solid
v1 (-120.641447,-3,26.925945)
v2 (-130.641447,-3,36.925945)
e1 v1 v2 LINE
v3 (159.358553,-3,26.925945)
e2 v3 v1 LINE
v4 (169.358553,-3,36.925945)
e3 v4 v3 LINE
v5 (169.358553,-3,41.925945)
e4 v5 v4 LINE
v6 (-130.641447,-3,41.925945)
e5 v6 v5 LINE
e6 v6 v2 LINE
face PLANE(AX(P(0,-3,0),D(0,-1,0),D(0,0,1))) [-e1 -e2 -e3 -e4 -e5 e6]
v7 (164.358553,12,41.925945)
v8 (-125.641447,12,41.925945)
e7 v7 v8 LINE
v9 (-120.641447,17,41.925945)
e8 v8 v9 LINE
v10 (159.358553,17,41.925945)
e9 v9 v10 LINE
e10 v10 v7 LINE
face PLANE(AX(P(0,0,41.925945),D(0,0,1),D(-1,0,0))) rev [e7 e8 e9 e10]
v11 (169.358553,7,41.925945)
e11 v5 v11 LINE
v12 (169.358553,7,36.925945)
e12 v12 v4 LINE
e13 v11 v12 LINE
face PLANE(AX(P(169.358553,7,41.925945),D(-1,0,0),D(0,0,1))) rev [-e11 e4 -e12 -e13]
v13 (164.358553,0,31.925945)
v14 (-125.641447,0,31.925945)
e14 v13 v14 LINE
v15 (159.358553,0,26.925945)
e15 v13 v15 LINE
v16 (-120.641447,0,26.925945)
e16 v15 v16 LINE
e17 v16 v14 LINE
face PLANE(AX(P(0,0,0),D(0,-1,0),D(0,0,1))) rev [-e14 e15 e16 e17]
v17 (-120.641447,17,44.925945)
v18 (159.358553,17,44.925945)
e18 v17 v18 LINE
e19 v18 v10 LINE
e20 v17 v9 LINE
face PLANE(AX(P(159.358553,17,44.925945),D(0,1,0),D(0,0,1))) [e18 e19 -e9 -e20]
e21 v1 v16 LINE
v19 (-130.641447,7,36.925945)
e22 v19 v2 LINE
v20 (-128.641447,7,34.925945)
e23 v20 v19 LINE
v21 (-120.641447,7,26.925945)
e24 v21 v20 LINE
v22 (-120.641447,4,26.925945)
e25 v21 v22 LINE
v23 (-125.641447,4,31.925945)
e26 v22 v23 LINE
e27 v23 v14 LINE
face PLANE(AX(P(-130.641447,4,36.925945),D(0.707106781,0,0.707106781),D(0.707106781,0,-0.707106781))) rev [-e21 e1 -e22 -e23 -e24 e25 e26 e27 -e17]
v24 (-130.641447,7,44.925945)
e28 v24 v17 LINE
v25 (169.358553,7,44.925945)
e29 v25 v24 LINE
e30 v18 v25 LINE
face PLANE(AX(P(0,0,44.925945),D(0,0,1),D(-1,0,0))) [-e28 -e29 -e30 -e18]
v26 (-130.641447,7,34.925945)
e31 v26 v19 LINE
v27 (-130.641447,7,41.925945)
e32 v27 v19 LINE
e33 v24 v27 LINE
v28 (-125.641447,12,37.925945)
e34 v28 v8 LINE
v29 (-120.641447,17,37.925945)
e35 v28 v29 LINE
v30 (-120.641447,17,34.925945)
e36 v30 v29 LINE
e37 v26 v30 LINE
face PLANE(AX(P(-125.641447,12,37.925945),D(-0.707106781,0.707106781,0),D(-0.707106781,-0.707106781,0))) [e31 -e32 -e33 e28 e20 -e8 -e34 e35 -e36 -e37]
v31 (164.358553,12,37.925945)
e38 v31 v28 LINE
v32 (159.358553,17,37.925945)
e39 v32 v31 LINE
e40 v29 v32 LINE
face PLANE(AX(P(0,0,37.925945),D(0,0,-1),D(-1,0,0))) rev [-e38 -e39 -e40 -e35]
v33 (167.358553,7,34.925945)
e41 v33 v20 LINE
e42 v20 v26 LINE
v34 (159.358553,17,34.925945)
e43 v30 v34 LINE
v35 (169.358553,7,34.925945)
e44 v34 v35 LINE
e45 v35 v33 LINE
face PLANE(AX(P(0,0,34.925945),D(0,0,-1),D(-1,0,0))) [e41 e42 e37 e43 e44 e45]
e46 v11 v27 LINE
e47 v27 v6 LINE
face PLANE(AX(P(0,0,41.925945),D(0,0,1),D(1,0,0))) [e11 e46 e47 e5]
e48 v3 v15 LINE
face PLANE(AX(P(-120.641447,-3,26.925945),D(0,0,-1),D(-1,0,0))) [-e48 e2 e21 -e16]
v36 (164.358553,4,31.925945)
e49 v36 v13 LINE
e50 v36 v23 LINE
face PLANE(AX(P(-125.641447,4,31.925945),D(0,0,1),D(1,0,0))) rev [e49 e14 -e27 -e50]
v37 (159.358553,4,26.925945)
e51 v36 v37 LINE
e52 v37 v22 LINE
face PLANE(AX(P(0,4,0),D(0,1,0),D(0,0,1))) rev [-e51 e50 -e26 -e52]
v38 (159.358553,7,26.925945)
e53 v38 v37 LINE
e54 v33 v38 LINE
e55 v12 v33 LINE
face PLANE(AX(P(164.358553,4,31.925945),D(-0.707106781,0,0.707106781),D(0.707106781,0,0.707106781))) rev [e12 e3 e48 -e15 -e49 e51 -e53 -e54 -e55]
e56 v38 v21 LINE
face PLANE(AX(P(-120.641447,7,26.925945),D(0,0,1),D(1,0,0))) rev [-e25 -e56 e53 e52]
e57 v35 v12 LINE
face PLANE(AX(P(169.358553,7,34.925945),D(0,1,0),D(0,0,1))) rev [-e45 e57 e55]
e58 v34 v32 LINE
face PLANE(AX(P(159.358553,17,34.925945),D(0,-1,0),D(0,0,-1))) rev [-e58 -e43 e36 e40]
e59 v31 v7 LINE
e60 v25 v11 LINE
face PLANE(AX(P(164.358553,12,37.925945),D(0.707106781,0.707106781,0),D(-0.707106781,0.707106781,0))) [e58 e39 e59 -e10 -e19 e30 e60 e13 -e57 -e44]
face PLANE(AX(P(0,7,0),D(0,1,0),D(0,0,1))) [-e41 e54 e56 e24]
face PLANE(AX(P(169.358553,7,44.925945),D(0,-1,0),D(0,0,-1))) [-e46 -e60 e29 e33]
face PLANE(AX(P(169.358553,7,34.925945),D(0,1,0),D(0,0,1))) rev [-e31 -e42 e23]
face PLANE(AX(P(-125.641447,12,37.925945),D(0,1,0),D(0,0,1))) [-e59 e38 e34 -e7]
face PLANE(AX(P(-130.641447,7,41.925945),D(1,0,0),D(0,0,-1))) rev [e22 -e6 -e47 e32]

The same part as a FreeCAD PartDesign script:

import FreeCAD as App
import Part
import Sketcher

V = App.Vector
Q = App.Units.Quantity

doc = App.newDocument("Part")
body = doc.addObject("PartDesign::Body", "Body")

sketch1 = doc.addObject("Sketcher::SketchObject", "Sketch")
body.addObject(sketch1)
sketch1.AttachmentSupport = (doc.XZ_Plane, [""])
sketch1.MapMode = "FlatFace"
sketch1.addGeometry(Part.LineSegment(V(-130.641447, 36.925945, 0), V(169.358553, 36.925945, 0)), False)
sketch1.addGeometry(Part.LineSegment(V(169.358553, 36.925945, 0), V(164.358553, 31.925945, 0)), False)
sketch1.addGeometry(Part.LineSegment(V(164.358553, 31.925945, 0), V(-125.641447, 31.925945, 0)), False)
sketch1.addGeometry(Part.LineSegment(V(-125.641447, 31.925945, 0), V(-130.641447, 36.925945, 0)), False)
sketch1.addConstraint(Sketcher.Constraint("Coincident", 0, 2, 1, 1))
sketch1.addConstraint(Sketcher.Constraint("Coincident", 1, 2, 2, 1))
sketch1.addConstraint(Sketcher.Constraint("Coincident", 2, 2, 3, 1))
sketch1.addConstraint(Sketcher.Constraint("Coincident", 3, 2, 0, 1))
sketch1.addConstraint(Sketcher.Constraint("Horizontal", 0))
sketch1.addConstraint(Sketcher.Constraint("Horizontal", 2))
sketch1.addConstraint(Sketcher.Constraint("Perpendicular", 1, 3))
sketch1.addConstraint(Sketcher.Constraint("Equal", 1, 3))
sketch1.addConstraint(Sketcher.Constraint("DistanceX", 0, 1, 0, 2, Q("300 mm")))
sketch1.addConstraint(Sketcher.Constraint("DistanceX", 2, 2, 2, 1, Q("290 mm")))
sketch1.addConstraint(Sketcher.Constraint("DistanceX", -1, 1, 0, 2, Q("169.358553 mm")))
sketch1.addConstraint(Sketcher.Constraint("DistanceY", -1, 1, 0, 2, Q("36.925945 mm")))
pad1 = doc.addObject("PartDesign::Pad", "Pad")
body.addObject(pad1)
pad1.Profile = sketch1
pad1.Length = 4
pad1.Reversed = True

sketch2 = doc.addObject("Sketcher::SketchObject", "Sketch001")
body.addObject(sketch2)
sketch2.AttachmentSupport = (doc.XZ_Plane, [""])
sketch2.MapMode = "FlatFace"
sketch2.AttachmentOffset = App.Placement(V(0, 0, -4), App.Rotation())
sketch2.addGeometry(Part.LineSegment(V(-120.641447, 26.925945, 0), V(-130.641447, 36.925945, 0)), False)
sketch2.addGeometry(Part.LineSegment(V(-130.641447, 36.925945, 0), V(169.358553, 36.925945, 0)), False)
sketch2.addGeometry(Part.LineSegment(V(169.358553, 36.925945, 0), V(159.358553, 26.925945, 0)), False)
sketch2.addGeometry(Part.LineSegment(V(159.358553, 26.925945, 0), V(-120.641447, 26.925945, 0)), False)
sketch2.addConstraint(Sketcher.Constraint("Coincident", 0, 2, 1, 1))
sketch2.addConstraint(Sketcher.Constraint("Coincident", 1, 2, 2, 1))
sketch2.addConstraint(Sketcher.Constraint("Coincident", 2, 2, 3, 1))
sketch2.addConstraint(Sketcher.Constraint("Coincident", 3, 2, 0, 1))
sketch2.addConstraint(Sketcher.Constraint("Horizontal", 1))
sketch2.addConstraint(Sketcher.Constraint("Horizontal", 3))
sketch2.addConstraint(Sketcher.Constraint("Perpendicular", 0, 2))
sketch2.addConstraint(Sketcher.Constraint("Equal", 0, 2))
sketch2.addConstraint(Sketcher.Constraint("DistanceX", 1, 1, 1, 2, Q("300 mm")))
sketch2.addConstraint(Sketcher.Constraint("DistanceX", 3, 2, 3, 1, Q("280 mm")))
sketch2.addConstraint(Sketcher.Constraint("DistanceX", 0, 2, -1, 1, Q("130.641447 mm")))
sketch2.addConstraint(Sketcher.Constraint("DistanceY", -1, 1, 0, 2, Q("36.925945 mm")))
pad2 = doc.addObject("PartDesign::Pad", "Pad001")
body.addObject(pad2)
pad2.Profile = sketch2
pad2.Length = 3
pad2.Reversed = True
doc.recompute()

datumplane = doc.addObject("PartDesign::Plane", "DatumPlane")
body.addObject(datumplane)
datumplane.AttachmentSupport = (doc.XZ_Plane, [""])
datumplane.MapMode = "FlatFace"
datumplane.AttachmentOffset = App.Placement(V(0, 0, -2), App.Rotation())
mirrored = doc.addObject("PartDesign::Mirrored", "Mirrored")
body.addObject(mirrored)
mirrored.Originals = [pad2]
mirrored.MirrorPlane = (datumplane, [""])
body.Tip = mirrored

sketch3 = doc.addObject("Sketcher::SketchObject", "Sketch002")
body.addObject(sketch3)
sketch3.AttachmentSupport = (doc.XY_Plane, [""])
sketch3.MapMode = "FlatFace"
sketch3.AttachmentOffset = App.Placement(V(0, 0, 36.925945), App.Rotation())
sketch3.addGeometry(Part.LineSegment(V(-130.641447, 7, 0), V(-130.641447, -3, 0)), False)
sketch3.addGeometry(Part.LineSegment(V(-130.641447, -3, 0), V(169.358553, -3, 0)), False)
sketch3.addGeometry(Part.LineSegment(V(169.358553, -3, 0), V(169.358553, 7, 0)), False)
sketch3.addGeometry(Part.LineSegment(V(169.358553, 7, 0), V(-130.641447, 7, 0)), False)
sketch3.addConstraint(Sketcher.Constraint("Coincident", 0, 2, 1, 1))
sketch3.addConstraint(Sketcher.Constraint("Coincident", 1, 2, 2, 1))
sketch3.addConstraint(Sketcher.Constraint("Coincident", 2, 2, 3, 1))
sketch3.addConstraint(Sketcher.Constraint("Coincident", 3, 2, 0, 1))
sketch3.addConstraint(Sketcher.Constraint("Vertical", 0))
sketch3.addConstraint(Sketcher.Constraint("Horizontal", 1))
sketch3.addConstraint(Sketcher.Constraint("Vertical", 2))
sketch3.addConstraint(Sketcher.Constraint("Horizontal", 3))
sketch3.addConstraint(Sketcher.Constraint("DistanceX", 1, 1, 1, 2, Q("300 mm")))
sketch3.addConstraint(Sketcher.Constraint("DistanceY", 0, 2, 0, 1, Q("10 mm")))
sketch3.addConstraint(Sketcher.Constraint("DistanceY", 0, 2, -1, 1, Q("3 mm")))
sketch3.addConstraint(Sketcher.Constraint("DistanceX", 0, 2, -1, 1, Q("130.641447 mm")))
pad3 = doc.addObject("PartDesign::Pad", "Pad002")
body.addObject(pad3)
pad3.Profile = sketch3
pad3.Length = 5

sketch4 = doc.addObject("Sketcher::SketchObject", "Sketch003")
body.addObject(sketch4)
sketch4.AttachmentSupport = (doc.XY_Plane, [""])
sketch4.MapMode = "FlatFace"
sketch4.AttachmentOffset = App.Placement(V(0, 0, 41.925945), App.Rotation())
sketch4.addGeometry(Part.LineSegment(V(-130.641447, 7, 0), V(169.358553, 7, 0)), False)
sketch4.addGeometry(Part.LineSegment(V(169.358553, 7, 0), V(164.358553, 12, 0)), False)
sketch4.addGeometry(Part.LineSegment(V(164.358553, 12, 0), V(-125.641447, 12, 0)), False)
sketch4.addGeometry(Part.LineSegment(V(-125.641447, 12, 0), V(-130.641447, 7, 0)), False)
sketch4.addConstraint(Sketcher.Constraint("Coincident", 0, 2, 1, 1))
sketch4.addConstraint(Sketcher.Constraint("Coincident", 1, 2, 2, 1))
sketch4.addConstraint(Sketcher.Constraint("Coincident", 2, 2, 3, 1))
sketch4.addConstraint(Sketcher.Constraint("Coincident", 3, 2, 0, 1))
sketch4.addConstraint(Sketcher.Constraint("Horizontal", 0))
sketch4.addConstraint(Sketcher.Constraint("Horizontal", 2))
sketch4.addConstraint(Sketcher.Constraint("Perpendicular", 1, 3))
sketch4.addConstraint(Sketcher.Constraint("Equal", 1, 3))
sketch4.addConstraint(Sketcher.Constraint("DistanceX", 0, 1, 0, 2, Q("300 mm")))
sketch4.addConstraint(Sketcher.Constraint("DistanceX", 2, 2, 2, 1, Q("290 mm")))
sketch4.addConstraint(Sketcher.Constraint("DistanceY", -1, 1, 0, 2, Q("7 mm")))
sketch4.addConstraint(Sketcher.Constraint("DistanceX", -1, 1, 0, 2, Q("169.358553 mm")))
pad4 = doc.addObject("PartDesign::Pad", "Pad003")
body.addObject(pad4)
pad4.Profile = sketch4
pad4.Length = 4
pad4.Reversed = True

sketch5 = doc.addObject("Sketcher::SketchObject", "Sketch004")
body.addObject(sketch5)
sketch5.AttachmentSupport = (doc.XY_Plane, [""])
sketch5.MapMode = "FlatFace"
sketch5.AttachmentOffset = App.Placement(V(0, 0, 37.925945), App.Rotation())
sketch5.addGeometry(Part.LineSegment(V(159.358553, 17, 0), V(169.358553, 7, 0)), False)
sketch5.addGeometry(Part.LineSegment(V(169.358553, 7, 0), V(-130.641447, 7, 0)), False)
sketch5.addGeometry(Part.LineSegment(V(-130.641447, 7, 0), V(-120.641447, 17, 0)), False)
sketch5.addGeometry(Part.LineSegment(V(-120.641447, 17, 0), V(159.358553, 17, 0)), False)
sketch5.addConstraint(Sketcher.Constraint("Coincident", 0, 2, 1, 1))
sketch5.addConstraint(Sketcher.Constraint("Coincident", 1, 2, 2, 1))
sketch5.addConstraint(Sketcher.Constraint("Coincident", 2, 2, 3, 1))
sketch5.addConstraint(Sketcher.Constraint("Coincident", 3, 2, 0, 1))
sketch5.addConstraint(Sketcher.Constraint("Horizontal", 1))
sketch5.addConstraint(Sketcher.Constraint("Horizontal", 3))
sketch5.addConstraint(Sketcher.Constraint("Perpendicular", 0, 2))
sketch5.addConstraint(Sketcher.Constraint("Equal", 0, 2))
sketch5.addConstraint(Sketcher.Constraint("DistanceX", 1, 2, 1, 1, Q("300 mm")))
sketch5.addConstraint(Sketcher.Constraint("DistanceX", 3, 1, 3, 2, Q("280 mm")))
sketch5.addConstraint(Sketcher.Constraint("DistanceY", -1, 1, 0, 2, Q("7 mm")))
sketch5.addConstraint(Sketcher.Constraint("DistanceX", -1, 1, 0, 2, Q("169.358553 mm")))
pad5 = doc.addObject("PartDesign::Pad", "Pad004")
body.addObject(pad5)
pad5.Profile = sketch5
pad5.Length = 3
pad5.Reversed = True
doc.recompute()

datumplane2 = doc.addObject("PartDesign::Plane", "DatumPlane001")
body.addObject(datumplane2)
datumplane2.AttachmentSupport = (doc.XY_Plane, [""])
datumplane2.MapMode = "FlatFace"
datumplane2.AttachmentOffset = App.Placement(V(0, 0, 39.925945), App.Rotation())
mirrored2 = doc.addObject("PartDesign::Mirrored", "Mirrored001")
body.addObject(mirrored2)
mirrored2.Originals = [pad5]
mirrored2.MirrorPlane = (datumplane2, [""])
body.Tip = mirrored2

doc.recompute()
